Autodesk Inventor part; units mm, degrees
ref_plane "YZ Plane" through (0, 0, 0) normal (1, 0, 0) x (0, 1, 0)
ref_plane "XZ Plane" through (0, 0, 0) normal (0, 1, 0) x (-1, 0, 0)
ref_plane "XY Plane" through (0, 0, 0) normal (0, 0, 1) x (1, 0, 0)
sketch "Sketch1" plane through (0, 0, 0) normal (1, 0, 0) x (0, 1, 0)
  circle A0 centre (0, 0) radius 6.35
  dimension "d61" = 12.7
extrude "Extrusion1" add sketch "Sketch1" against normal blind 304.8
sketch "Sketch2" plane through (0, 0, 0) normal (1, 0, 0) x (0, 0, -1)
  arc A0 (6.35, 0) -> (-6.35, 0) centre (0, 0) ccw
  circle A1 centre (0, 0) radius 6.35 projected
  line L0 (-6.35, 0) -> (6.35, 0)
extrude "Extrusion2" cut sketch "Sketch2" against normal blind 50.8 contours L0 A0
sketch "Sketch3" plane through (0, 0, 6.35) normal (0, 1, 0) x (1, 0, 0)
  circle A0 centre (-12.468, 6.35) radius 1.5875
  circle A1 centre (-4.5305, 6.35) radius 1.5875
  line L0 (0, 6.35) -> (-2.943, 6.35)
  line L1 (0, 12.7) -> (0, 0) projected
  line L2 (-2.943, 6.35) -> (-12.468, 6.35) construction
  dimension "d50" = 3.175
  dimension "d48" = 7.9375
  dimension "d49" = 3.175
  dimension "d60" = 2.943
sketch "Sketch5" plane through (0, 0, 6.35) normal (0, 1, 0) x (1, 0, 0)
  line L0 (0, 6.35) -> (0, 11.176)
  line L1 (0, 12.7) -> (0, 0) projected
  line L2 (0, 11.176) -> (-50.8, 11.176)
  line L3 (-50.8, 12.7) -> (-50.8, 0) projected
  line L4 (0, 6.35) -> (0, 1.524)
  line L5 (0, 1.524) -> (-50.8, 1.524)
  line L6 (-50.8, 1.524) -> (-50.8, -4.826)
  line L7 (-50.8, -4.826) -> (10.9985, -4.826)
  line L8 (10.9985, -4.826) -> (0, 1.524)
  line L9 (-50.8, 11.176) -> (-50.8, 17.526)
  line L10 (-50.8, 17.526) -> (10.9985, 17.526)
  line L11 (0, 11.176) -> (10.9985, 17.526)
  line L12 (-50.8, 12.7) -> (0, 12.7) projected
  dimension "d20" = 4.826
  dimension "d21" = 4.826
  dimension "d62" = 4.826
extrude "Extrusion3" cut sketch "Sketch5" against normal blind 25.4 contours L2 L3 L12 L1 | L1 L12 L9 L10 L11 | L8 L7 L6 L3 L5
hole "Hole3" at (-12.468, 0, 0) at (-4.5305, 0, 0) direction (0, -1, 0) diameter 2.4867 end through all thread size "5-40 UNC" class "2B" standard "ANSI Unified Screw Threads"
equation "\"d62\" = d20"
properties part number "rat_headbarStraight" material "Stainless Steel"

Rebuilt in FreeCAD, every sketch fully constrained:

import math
import FreeCAD as App
import Part
import Sketcher
Q = App.Units.Quantity


def add_polygon(sketch, points):
    """Adds a closed chain of lines whose ends are joined by coincident constraints."""
    first, n = sketch.GeometryCount, len(points)
    for a, b in zip(points, points[1:] + points[:1]):
        sketch.addGeometry(Part.LineSegment(App.Vector(*a, 0), App.Vector(*b, 0)), False)
    for i in range(n):
        sketch.addConstraint(Sketcher.Constraint("Coincident", first + i, 2, first + (i + 1) % n, 1))

doc = App.newDocument("Part")
body = doc.addObject("PartDesign::Body", "Body")

# Sketch on YZ plane
sketch1 = body.newObject("Sketcher::SketchObject", "Sketch")
sketch1.AttachmentSupport = (doc.getObject("YZ_Plane"), [""])
sketch1.MapMode = "FlatFace"
sketch1.addGeometry(Part.Circle(App.Vector(0, 0, 0), App.Vector(0, 0, 1), 6.35), False)
sketch1.addConstraint([
    Sketcher.Constraint("Coincident", 0, 3, -1, 1),
    Sketcher.Constraint("Diameter", 0, Q("0.5 in")),
])
pad1 = body.newObject("PartDesign::Pad", "Pad")
pad1.Profile = sketch1
pad1.Length = Q("12 in")
pad1.Reversed = True

# Sketch on YZ plane
sketch2 = body.newObject("Sketcher::SketchObject", "Sketch001")
sketch2.AttachmentSupport = (doc.getObject("YZ_Plane"), [""])
sketch2.MapMode = "FlatFace"
sketch2.addGeometry([
    Part.LineSegment(App.Vector(0, 6.35, 0), App.Vector(0, -6.35, 0)),
    Part.ArcOfCircle(Part.Circle(App.Vector(0, 0, 0), App.Vector(0, 0, 1), 6.35), math.radians(-90), math.radians(90)),
], False)
sketch2.addConstraint([
    Sketcher.Constraint("Coincident", 0, 1, 1, 2),
    Sketcher.Constraint("Coincident", 1, 1, 0, 2),
    Sketcher.Constraint("Vertical", 0),
    Sketcher.Constraint("Coincident", 1, 3, -1, 1),
    Sketcher.Constraint("PointOnObject", 0, 1, -2),
    Sketcher.Constraint("Radius", 1, Q("0.25 in")),
])
pocket1 = body.newObject("PartDesign::Pocket", "Pocket")
pocket1.Profile = sketch2
pocket1.Length = Q("2 in")

# Sketch on XZ plane
sketch3 = body.newObject("Sketcher::SketchObject", "Sketch002")
sketch3.AttachmentSupport = (doc.getObject("XZ_Plane"), [""])
sketch3.MapMode = "FlatFace"
add_polygon(sketch3, [(-50.8, -4.826), (0, -4.826), (10.9985, -11.176), (-50.8, -11.176)])  # lines 0-3
add_polygon(sketch3, [(10.9985, 11.176), (0, 4.826), (-50.8, 4.826), (-50.8, 11.176)])  # lines 4-7
sketch3.addConstraint([
    Sketcher.Constraint("Horizontal", 0),
    Sketcher.Constraint("Horizontal", 2),
    Sketcher.Constraint("Vertical", 3),
    Sketcher.Constraint("Horizontal", 5),
    Sketcher.Constraint("Vertical", 6),
    Sketcher.Constraint("Horizontal", 7),
    Sketcher.Constraint("Symmetric", 0, 2, 4, 2, -1, 1),
    Sketcher.Constraint("Symmetric", 2, 2, 6, 2, -1),
    Sketcher.Constraint("PointOnObject", 0, 2, -2),
    Sketcher.Constraint("Vertical", 1, 2, 7, 2),
    Sketcher.Constraint("DistanceX", 0, 1, 0, 2, Q("2 in")),
    Sketcher.Constraint("DistanceY", 0, 2, -1, 1, Q("0.19 in")),
    Sketcher.Constraint("Angle", 1, Q("-30 deg")),
    Sketcher.Constraint("Distance", 1, Q("0.5 in")),
])
pocket2 = body.newObject("PartDesign::Pocket", "Pocket001")
pocket2.Profile = sketch3
pocket2.Length = Q("1 in")
pocket2.Reversed = True

# Sketch on XZ plane
sketch4 = body.newObject("Sketcher::SketchObject", "Sketch003")
sketch4.AttachmentSupport = (doc.getObject("XZ_Plane"), [""])
sketch4.MapMode = "FlatFace"
sketch4.addGeometry([
    Part.Circle(App.Vector(-12.468, 0, 0), App.Vector(0, 0, 1), 1.24335),
    Part.Circle(App.Vector(-4.5305, 0, 0), App.Vector(0, 0, 1), 1.24335),
], False)
sketch4.addConstraint([
    Sketcher.Constraint("Equal", 0, 1),
    Sketcher.Constraint("PointOnObject", 0, 3, -1),
    Sketcher.Constraint("PointOnObject", 1, 3, -1),
    Sketcher.Constraint("Diameter", 0, Q("0.0979 in")),
    Sketcher.Constraint("DistanceX", 0, 3, 1, 3, Q("0.3125 in")),
    Sketcher.Constraint("DistanceX", 0, 3, -1, 1, 12.468),
])
doc.recompute()
hole = body.newObject("PartDesign::Hole", "Hole")
hole.Profile = sketch4
hole.ThreadType = "None"
hole.Diameter = Q("0.0979016 in")
hole.DepthType = "ThroughAll"
hole.Reversed = True

doc.recompute()
